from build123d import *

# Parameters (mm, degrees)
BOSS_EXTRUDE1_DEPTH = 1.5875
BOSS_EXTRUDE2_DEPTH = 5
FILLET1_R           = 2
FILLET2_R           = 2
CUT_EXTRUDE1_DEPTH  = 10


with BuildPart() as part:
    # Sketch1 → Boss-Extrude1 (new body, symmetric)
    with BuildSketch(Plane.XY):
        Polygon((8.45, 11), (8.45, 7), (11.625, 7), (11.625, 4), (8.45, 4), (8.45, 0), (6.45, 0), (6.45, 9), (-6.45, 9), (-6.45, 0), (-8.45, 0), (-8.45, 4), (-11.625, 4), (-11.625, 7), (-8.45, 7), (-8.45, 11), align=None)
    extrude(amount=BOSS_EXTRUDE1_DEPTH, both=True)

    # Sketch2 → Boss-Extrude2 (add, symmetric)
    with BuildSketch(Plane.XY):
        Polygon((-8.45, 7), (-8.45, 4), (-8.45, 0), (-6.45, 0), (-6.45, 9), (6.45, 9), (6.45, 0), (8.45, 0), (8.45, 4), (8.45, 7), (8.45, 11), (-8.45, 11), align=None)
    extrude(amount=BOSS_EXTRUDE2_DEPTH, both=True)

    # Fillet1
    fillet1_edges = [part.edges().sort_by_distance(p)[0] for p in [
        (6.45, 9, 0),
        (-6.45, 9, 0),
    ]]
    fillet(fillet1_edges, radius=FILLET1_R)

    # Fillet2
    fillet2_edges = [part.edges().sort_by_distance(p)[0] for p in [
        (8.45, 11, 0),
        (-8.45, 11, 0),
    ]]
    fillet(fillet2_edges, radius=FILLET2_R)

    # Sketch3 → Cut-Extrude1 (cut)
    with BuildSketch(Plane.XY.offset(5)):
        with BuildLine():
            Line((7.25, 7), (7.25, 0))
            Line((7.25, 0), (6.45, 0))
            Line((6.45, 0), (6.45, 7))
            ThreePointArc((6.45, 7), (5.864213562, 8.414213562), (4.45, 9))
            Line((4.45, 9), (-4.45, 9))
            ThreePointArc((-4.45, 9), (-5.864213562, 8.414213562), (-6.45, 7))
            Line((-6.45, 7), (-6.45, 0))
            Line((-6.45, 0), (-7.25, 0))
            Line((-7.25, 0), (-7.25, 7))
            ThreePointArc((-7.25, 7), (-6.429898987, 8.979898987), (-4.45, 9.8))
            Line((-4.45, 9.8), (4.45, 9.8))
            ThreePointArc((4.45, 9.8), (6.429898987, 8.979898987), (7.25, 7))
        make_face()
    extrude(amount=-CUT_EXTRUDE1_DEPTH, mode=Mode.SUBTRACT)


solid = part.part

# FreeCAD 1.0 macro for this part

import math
import FreeCAD as App
import Part
import Sketcher

V = App.Vector
Q = App.Units.Quantity


def edges_at(feature, points):
    """Names of the edges that pass closest to the given points."""
    edges = feature.Shape.Edges
    near = lambda p: min(range(len(edges)), key=lambda i: edges[i].distToShape(Part.Vertex(*p))[0])
    return sorted({f"Edge{near(p) + 1}" for p in points})

doc = App.newDocument("Part")
params = doc.addObject("Spreadsheet::Sheet", "Params")
for row, (alias, value) in enumerate([
    ("sketch1_width", "2 mm"),
    ("sketch1_height", "4 mm"),
    ("sketch1_height2", "3 mm"),
    ("sketch1_height3", "9 mm"),
    ("sketch1_width2", "16.9 mm"),
    ("pad1_length", "3.175 mm"),
    ("sketch2_width", "2 mm"),
    ("sketch2_height", "9 mm"),
    ("sketch2_height2", "11 mm"),
    ("sketch2_width2", "12.9 mm"),
    ("pad2_length", "10 mm"),
    ("fillet_radius", "2 mm"),
    ("fillet2_radius", "2 mm"),
    ("sketch3_radius", "2 mm"),
    ("sketch3_radius2", "2.8 mm"),
    ("sketch3_height", "7 mm"),
    ("sketch3_width", "8.9 mm"),
    ("pocket1_length", "10 mm"),
], start=1):
    params.set(f"A{row}", alias)
    params.set(f"B{row}", "=" + value)
    params.setAlias(f"B{row}", alias)

body = doc.addObject("PartDesign::Body", "Body")

# Sketch on XY plane
sketch1 = body.newObject("Sketcher::SketchObject", "Sketch")
sketch1.AttachmentSupport = (doc.getObject("XY_Plane"), [""])
sketch1.MapMode = "FlatFace"
sketch1.addGeometry([
    Part.LineSegment(V(8.4, 7, 0), V(8.4, 11, 0)),  # 0
    Part.LineSegment(V(8.4, 11, 0), V(-8.4, 11, 0)),  # 1
    Part.LineSegment(V(-8.4, 11, 0), V(-8.4, 7, 0)),  # 2
    Part.LineSegment(V(-8.4, 7, 0), V(-11.6, 7, 0)),  # 3
    Part.LineSegment(V(-11.6, 7, 0), V(-11.6, 4, 0)),  # 4
    Part.LineSegment(V(-11.6, 4, 0), V(-8.4, 4, 0)),  # 5
    Part.LineSegment(V(-8.4, 4, 0), V(-8.4, 0, 0)),  # 6
    Part.LineSegment(V(-8.4, 0, 0), V(-6.5, 0, 0)),  # 7
    Part.LineSegment(V(-6.5, 0, 0), V(-6.5, 9, 0)),  # 8
    Part.LineSegment(V(-6.5, 9, 0), V(6.5, 9, 0)),  # 9
    Part.LineSegment(V(6.5, 9, 0), V(6.5, 0, 0)),  # 10
    Part.LineSegment(V(6.5, 0, 0), V(8.4, 0, 0)),  # 11
    Part.LineSegment(V(8.4, 0, 0), V(8.4, 4, 0)),  # 12
    Part.LineSegment(V(8.4, 4, 0), V(11.6, 4, 0)),  # 13
    Part.LineSegment(V(11.6, 4, 0), V(11.6, 7, 0)),  # 14
    Part.LineSegment(V(11.6, 7, 0), V(8.4, 7, 0)),  # 15
], False)
sketch1.addConstraint([
    Sketcher.Constraint("Coincident", 0, 2, 1, 1),
    Sketcher.Constraint("Coincident", 1, 2, 2, 1),
    Sketcher.Constraint("Coincident", 2, 2, 3, 1),
    Sketcher.Constraint("Coincident", 3, 2, 4, 1),
    Sketcher.Constraint("Coincident", 4, 2, 5, 1),
    Sketcher.Constraint("Coincident", 5, 2, 6, 1),
    Sketcher.Constraint("Coincident", 6, 2, 7, 1),
    Sketcher.Constraint("Coincident", 7, 2, 8, 1),
    Sketcher.Constraint("Coincident", 8, 2, 9, 1),
    Sketcher.Constraint("Coincident", 9, 2, 10, 1),
    Sketcher.Constraint("Coincident", 10, 2, 11, 1),
    Sketcher.Constraint("Coincident", 11, 2, 12, 1),
    Sketcher.Constraint("Coincident", 12, 2, 13, 1),
    Sketcher.Constraint("Coincident", 13, 2, 14, 1),
    Sketcher.Constraint("Coincident", 14, 2, 15, 1),
    Sketcher.Constraint("Coincident", 15, 2, 0, 1),
    Sketcher.Constraint("Vertical", 0),
    Sketcher.Constraint("Horizontal", 1),
    Sketcher.Constraint("Vertical", 2),
    Sketcher.Constraint("Horizontal", 3),
    Sketcher.Constraint("Vertical", 4),
    Sketcher.Constraint("Horizontal", 5),
    Sketcher.Constraint("Vertical", 6),
    Sketcher.Constraint("Horizontal", 7),
    Sketcher.Constraint("Vertical", 8),
    Sketcher.Constraint("Horizontal", 9),
    Sketcher.Constraint("Vertical", 10),
    Sketcher.Constraint("Horizontal", 11),
    Sketcher.Constraint("Vertical", 12),
    Sketcher.Constraint("Horizontal", 13),
    Sketcher.Constraint("Vertical", 14),
    Sketcher.Constraint("Horizontal", 15),
    Sketcher.Constraint("Symmetric", 7, 2, 10, 2, -1, 1),
    Sketcher.Constraint("Symmetric", 6, 2, 11, 2, -2),
    Sketcher.Constraint("Symmetric", 4, 2, 13, 2, -2),
    Sketcher.Constraint("Symmetric", 2, 2, 15, 2, -2),
    Sketcher.Constraint("Vertical", 2, 2, 5, 2),
    Sketcher.Constraint("Equal", 2, 6),
    Sketcher.Constraint("DistanceX", 7, 1, 7, 2, Q("2 mm")),
    Sketcher.Constraint("DistanceY", 0, 1, 0, 2, Q("4 mm")),
    Sketcher.Constraint("DistanceY", 4, 2, 4, 1, Q("3 mm")),
    Sketcher.Constraint("DistanceY", 8, 1, 8, 2, Q("9 mm")),
    Sketcher.Constraint("DistanceX", 1, 2, 1, 1, Q("16.9 mm")),
    Sketcher.Constraint("DistanceX", 3, 2, 3, 1, Q("3.175 mm")),
])
sketch1.setExpression("Constraints[38]", "Params.sketch1_width")
sketch1.setExpression("Constraints[39]", "Params.sketch1_height")
sketch1.setExpression("Constraints[40]", "Params.sketch1_height2")
sketch1.setExpression("Constraints[41]", "Params.sketch1_height3")
sketch1.setExpression("Constraints[42]", "Params.sketch1_width2")
pad1 = body.newObject("PartDesign::Pad", "Pad")
pad1.Profile = sketch1
pad1.setExpression("Length", "Params.pad1_length")
pad1.Midplane = True

# Sketch on XY plane
sketch2 = body.newObject("Sketcher::SketchObject", "Sketch001")
sketch2.AttachmentSupport = (doc.getObject("XY_Plane"), [""])
sketch2.MapMode = "FlatFace"
sketch2.addGeometry([
    Part.LineSegment(V(-8.4, 0, 0), V(-6.5, 0, 0)),  # 0
    Part.LineSegment(V(-6.5, 0, 0), V(-6.5, 9, 0)),  # 1
    Part.LineSegment(V(-6.5, 9, 0), V(6.5, 9, 0)),  # 2
    Part.LineSegment(V(6.5, 9, 0), V(6.5, 0, 0)),  # 3
    Part.LineSegment(V(6.5, 0, 0), V(8.4, 0, 0)),  # 4
    Part.LineSegment(V(8.4, 0, 0), V(8.4, 11, 0)),  # 5
    Part.LineSegment(V(8.4, 11, 0), V(-8.4, 11, 0)),  # 6
    Part.LineSegment(V(-8.4, 11, 0), V(-8.4, 0, 0)),  # 7
], False)
sketch2.addConstraint([
    Sketcher.Constraint("Coincident", 0, 2, 1, 1),
    Sketcher.Constraint("Coincident", 1, 2, 2, 1),
    Sketcher.Constraint("Coincident", 2, 2, 3, 1),
    Sketcher.Constraint("Coincident", 3, 2, 4, 1),
    Sketcher.Constraint("Coincident", 4, 2, 5, 1),
    Sketcher.Constraint("Coincident", 5, 2, 6, 1),
    Sketcher.Constraint("Coincident", 6, 2, 7, 1),
    Sketcher.Constraint("Coincident", 7, 2, 0, 1),
    Sketcher.Constraint("Horizontal", 0),
    Sketcher.Constraint("Vertical", 1),
    Sketcher.Constraint("Horizontal", 2),
    Sketcher.Constraint("Vertical", 3),
    Sketcher.Constraint("Horizontal", 4),
    Sketcher.Constraint("Vertical", 5),
    Sketcher.Constraint("Horizontal", 6),
    Sketcher.Constraint("Vertical", 7),
    Sketcher.Constraint("Symmetric", 0, 2, 3, 2, -1, 1),
    Sketcher.Constraint("Symmetric", 4, 2, 7, 2, -2),
    Sketcher.Constraint("DistanceX", 0, 1, 0, 2, Q("2 mm")),
    Sketcher.Constraint("DistanceY", 1, 1, 1, 2, Q("9 mm")),
    Sketcher.Constraint("DistanceY", 5, 1, 5, 2, Q("11 mm")),
    Sketcher.Constraint("DistanceX", 2, 1, 2, 2, Q("12.9 mm")),
])
sketch2.setExpression("Constraints[18]", "Params.sketch2_width")
sketch2.setExpression("Constraints[19]", "Params.sketch2_height")
sketch2.setExpression("Constraints[20]", "Params.sketch2_height2")
sketch2.setExpression("Constraints[21]", "Params.sketch2_width2")
pad2 = body.newObject("PartDesign::Pad", "Pad001")
pad2.Profile = sketch2
pad2.setExpression("Length", "Params.pad2_length")
pad2.Midplane = True
doc.recompute()

fillet = body.newObject("PartDesign::Fillet", "Fillet")
fillet.Base = (pad2, edges_at(pad2, [(6.45, 9, 0), (-6.45, 9, 0)]))
fillet.setExpression("Radius", "Params.fillet_radius")
doc.recompute()

fillet2 = body.newObject("PartDesign::Fillet", "Fillet001")
fillet2.Base = (fillet, edges_at(fillet, [(8.45, 11, 0), (-8.45, 11, 0)]))
fillet2.setExpression("Radius", "Params.fillet2_radius")

# Sketch on XY plane
sketch3 = body.newObject("Sketcher::SketchObject", "Sketch002")
sketch3.AttachmentSupport = (doc.getObject("XY_Plane"), [""])
sketch3.MapMode = "FlatFace"
sketch3.AttachmentOffset = App.Placement(V(0, 0, 5), App.Rotation())
sketch3.addGeometry([
    Part.LineSegment(V(7.2, 0, 0), V(7.2, 7, 0)),  # 0
    Part.ArcOfCircle(Part.Circle(V(4.4, 7, 0), V(0, 0, 1), 2.8), math.radians(0), math.radians(90)),  # 1
    Part.LineSegment(V(4.5, 9.8, 0), V(-4.5, 9.8, 0)),  # 2
    Part.ArcOfCircle(Part.Circle(V(-4.4, 7, 0), V(0, 0, 1), 2.8), math.radians(90), math.radians(180)),  # 3
    Part.LineSegment(V(-7.2, 7, 0), V(-7.2, 0, 0)),  # 4
    Part.LineSegment(V(-7.2, 0, 0), V(-6.5, 0, 0)),  # 5
    Part.LineSegment(V(-6.5, 0, 0), V(-6.5, 7, 0)),  # 6
    Part.ArcOfCircle(Part.Circle(V(-4.4, 7, 0), V(0, 0, 1), 2), math.radians(90), math.radians(180)),  # 7
    Part.LineSegment(V(-4.5, 9, 0), V(4.5, 9, 0)),  # 8
    Part.ArcOfCircle(Part.Circle(V(4.4, 7, 0), V(0, 0, 1), 2), math.radians(0), math.radians(90)),  # 9
    Part.LineSegment(V(6.5, 7, 0), V(6.5, 0, 0)),  # 10
    Part.LineSegment(V(6.5, 0, 0), V(7.2, 0, 0)),  # 11
], False)
sketch3.addConstraint([
    Sketcher.Constraint("Tangent", 0, 2, 1, 1),
    Sketcher.Constraint("Tangent", 1, 2, 2, 1),
    Sketcher.Constraint("Tangent", 2, 2, 3, 1),
    Sketcher.Constraint("Tangent", 3, 2, 4, 1),
    Sketcher.Constraint("Coincident", 4, 2, 5, 1),
    Sketcher.Constraint("Coincident", 5, 2, 6, 1),
    Sketcher.Constraint("Tangent", 6, 2, 7, 2),
    Sketcher.Constraint("Tangent", 7, 1, 8, 1),
    Sketcher.Constraint("Tangent", 8, 2, 9, 2),
    Sketcher.Constraint("Tangent", 9, 1, 10, 1),
    Sketcher.Constraint("Coincident", 10, 2, 11, 1),
    Sketcher.Constraint("Coincident", 11, 2, 0, 1),
    Sketcher.Constraint("Vertical", 0),
    Sketcher.Constraint("Horizontal", 2),
    Sketcher.Constraint("Vertical", 4),
    Sketcher.Constraint("Horizontal", 5),
    Sketcher.Constraint("Vertical", 6),
    Sketcher.Constraint("Horizontal", 8),
    Sketcher.Constraint("Vertical", 10),
    Sketcher.Constraint("Horizontal", 11),
    Sketcher.Constraint("Coincident", 7, 3, 3, 3),
    Sketcher.Constraint("Coincident", 9, 3, 1, 3),
    Sketcher.Constraint("Equal", 1, 3),
    Sketcher.Constraint("Symmetric", 5, 2, 10, 2, -1, 1),
    Sketcher.Constraint("PointOnObject", 4, 2, -1),
    Sketcher.Constraint("Radius", 7, Q("2 mm")),
    Sketcher.Constraint("Radius", 1, Q("2.8 mm")),
    Sketcher.Constraint("DistanceY", 0, 1, 0, 2, Q("7 mm")),
    Sketcher.Constraint("DistanceX", 2, 2, 2, 1, Q("8.9 mm")),
])
sketch3.setExpression("Constraints[25]", "Params.sketch3_radius")
sketch3.setExpression("Constraints[26]", "Params.sketch3_radius2")
sketch3.setExpression("Constraints[27]", "Params.sketch3_height")
sketch3.setExpression("Constraints[28]", "Params.sketch3_width")
pocket1 = body.newObject("PartDesign::Pocket", "Pocket")
pocket1.Profile = sketch3
pocket1.setExpression("Length", "Params.pocket1_length")

doc.recompute()
